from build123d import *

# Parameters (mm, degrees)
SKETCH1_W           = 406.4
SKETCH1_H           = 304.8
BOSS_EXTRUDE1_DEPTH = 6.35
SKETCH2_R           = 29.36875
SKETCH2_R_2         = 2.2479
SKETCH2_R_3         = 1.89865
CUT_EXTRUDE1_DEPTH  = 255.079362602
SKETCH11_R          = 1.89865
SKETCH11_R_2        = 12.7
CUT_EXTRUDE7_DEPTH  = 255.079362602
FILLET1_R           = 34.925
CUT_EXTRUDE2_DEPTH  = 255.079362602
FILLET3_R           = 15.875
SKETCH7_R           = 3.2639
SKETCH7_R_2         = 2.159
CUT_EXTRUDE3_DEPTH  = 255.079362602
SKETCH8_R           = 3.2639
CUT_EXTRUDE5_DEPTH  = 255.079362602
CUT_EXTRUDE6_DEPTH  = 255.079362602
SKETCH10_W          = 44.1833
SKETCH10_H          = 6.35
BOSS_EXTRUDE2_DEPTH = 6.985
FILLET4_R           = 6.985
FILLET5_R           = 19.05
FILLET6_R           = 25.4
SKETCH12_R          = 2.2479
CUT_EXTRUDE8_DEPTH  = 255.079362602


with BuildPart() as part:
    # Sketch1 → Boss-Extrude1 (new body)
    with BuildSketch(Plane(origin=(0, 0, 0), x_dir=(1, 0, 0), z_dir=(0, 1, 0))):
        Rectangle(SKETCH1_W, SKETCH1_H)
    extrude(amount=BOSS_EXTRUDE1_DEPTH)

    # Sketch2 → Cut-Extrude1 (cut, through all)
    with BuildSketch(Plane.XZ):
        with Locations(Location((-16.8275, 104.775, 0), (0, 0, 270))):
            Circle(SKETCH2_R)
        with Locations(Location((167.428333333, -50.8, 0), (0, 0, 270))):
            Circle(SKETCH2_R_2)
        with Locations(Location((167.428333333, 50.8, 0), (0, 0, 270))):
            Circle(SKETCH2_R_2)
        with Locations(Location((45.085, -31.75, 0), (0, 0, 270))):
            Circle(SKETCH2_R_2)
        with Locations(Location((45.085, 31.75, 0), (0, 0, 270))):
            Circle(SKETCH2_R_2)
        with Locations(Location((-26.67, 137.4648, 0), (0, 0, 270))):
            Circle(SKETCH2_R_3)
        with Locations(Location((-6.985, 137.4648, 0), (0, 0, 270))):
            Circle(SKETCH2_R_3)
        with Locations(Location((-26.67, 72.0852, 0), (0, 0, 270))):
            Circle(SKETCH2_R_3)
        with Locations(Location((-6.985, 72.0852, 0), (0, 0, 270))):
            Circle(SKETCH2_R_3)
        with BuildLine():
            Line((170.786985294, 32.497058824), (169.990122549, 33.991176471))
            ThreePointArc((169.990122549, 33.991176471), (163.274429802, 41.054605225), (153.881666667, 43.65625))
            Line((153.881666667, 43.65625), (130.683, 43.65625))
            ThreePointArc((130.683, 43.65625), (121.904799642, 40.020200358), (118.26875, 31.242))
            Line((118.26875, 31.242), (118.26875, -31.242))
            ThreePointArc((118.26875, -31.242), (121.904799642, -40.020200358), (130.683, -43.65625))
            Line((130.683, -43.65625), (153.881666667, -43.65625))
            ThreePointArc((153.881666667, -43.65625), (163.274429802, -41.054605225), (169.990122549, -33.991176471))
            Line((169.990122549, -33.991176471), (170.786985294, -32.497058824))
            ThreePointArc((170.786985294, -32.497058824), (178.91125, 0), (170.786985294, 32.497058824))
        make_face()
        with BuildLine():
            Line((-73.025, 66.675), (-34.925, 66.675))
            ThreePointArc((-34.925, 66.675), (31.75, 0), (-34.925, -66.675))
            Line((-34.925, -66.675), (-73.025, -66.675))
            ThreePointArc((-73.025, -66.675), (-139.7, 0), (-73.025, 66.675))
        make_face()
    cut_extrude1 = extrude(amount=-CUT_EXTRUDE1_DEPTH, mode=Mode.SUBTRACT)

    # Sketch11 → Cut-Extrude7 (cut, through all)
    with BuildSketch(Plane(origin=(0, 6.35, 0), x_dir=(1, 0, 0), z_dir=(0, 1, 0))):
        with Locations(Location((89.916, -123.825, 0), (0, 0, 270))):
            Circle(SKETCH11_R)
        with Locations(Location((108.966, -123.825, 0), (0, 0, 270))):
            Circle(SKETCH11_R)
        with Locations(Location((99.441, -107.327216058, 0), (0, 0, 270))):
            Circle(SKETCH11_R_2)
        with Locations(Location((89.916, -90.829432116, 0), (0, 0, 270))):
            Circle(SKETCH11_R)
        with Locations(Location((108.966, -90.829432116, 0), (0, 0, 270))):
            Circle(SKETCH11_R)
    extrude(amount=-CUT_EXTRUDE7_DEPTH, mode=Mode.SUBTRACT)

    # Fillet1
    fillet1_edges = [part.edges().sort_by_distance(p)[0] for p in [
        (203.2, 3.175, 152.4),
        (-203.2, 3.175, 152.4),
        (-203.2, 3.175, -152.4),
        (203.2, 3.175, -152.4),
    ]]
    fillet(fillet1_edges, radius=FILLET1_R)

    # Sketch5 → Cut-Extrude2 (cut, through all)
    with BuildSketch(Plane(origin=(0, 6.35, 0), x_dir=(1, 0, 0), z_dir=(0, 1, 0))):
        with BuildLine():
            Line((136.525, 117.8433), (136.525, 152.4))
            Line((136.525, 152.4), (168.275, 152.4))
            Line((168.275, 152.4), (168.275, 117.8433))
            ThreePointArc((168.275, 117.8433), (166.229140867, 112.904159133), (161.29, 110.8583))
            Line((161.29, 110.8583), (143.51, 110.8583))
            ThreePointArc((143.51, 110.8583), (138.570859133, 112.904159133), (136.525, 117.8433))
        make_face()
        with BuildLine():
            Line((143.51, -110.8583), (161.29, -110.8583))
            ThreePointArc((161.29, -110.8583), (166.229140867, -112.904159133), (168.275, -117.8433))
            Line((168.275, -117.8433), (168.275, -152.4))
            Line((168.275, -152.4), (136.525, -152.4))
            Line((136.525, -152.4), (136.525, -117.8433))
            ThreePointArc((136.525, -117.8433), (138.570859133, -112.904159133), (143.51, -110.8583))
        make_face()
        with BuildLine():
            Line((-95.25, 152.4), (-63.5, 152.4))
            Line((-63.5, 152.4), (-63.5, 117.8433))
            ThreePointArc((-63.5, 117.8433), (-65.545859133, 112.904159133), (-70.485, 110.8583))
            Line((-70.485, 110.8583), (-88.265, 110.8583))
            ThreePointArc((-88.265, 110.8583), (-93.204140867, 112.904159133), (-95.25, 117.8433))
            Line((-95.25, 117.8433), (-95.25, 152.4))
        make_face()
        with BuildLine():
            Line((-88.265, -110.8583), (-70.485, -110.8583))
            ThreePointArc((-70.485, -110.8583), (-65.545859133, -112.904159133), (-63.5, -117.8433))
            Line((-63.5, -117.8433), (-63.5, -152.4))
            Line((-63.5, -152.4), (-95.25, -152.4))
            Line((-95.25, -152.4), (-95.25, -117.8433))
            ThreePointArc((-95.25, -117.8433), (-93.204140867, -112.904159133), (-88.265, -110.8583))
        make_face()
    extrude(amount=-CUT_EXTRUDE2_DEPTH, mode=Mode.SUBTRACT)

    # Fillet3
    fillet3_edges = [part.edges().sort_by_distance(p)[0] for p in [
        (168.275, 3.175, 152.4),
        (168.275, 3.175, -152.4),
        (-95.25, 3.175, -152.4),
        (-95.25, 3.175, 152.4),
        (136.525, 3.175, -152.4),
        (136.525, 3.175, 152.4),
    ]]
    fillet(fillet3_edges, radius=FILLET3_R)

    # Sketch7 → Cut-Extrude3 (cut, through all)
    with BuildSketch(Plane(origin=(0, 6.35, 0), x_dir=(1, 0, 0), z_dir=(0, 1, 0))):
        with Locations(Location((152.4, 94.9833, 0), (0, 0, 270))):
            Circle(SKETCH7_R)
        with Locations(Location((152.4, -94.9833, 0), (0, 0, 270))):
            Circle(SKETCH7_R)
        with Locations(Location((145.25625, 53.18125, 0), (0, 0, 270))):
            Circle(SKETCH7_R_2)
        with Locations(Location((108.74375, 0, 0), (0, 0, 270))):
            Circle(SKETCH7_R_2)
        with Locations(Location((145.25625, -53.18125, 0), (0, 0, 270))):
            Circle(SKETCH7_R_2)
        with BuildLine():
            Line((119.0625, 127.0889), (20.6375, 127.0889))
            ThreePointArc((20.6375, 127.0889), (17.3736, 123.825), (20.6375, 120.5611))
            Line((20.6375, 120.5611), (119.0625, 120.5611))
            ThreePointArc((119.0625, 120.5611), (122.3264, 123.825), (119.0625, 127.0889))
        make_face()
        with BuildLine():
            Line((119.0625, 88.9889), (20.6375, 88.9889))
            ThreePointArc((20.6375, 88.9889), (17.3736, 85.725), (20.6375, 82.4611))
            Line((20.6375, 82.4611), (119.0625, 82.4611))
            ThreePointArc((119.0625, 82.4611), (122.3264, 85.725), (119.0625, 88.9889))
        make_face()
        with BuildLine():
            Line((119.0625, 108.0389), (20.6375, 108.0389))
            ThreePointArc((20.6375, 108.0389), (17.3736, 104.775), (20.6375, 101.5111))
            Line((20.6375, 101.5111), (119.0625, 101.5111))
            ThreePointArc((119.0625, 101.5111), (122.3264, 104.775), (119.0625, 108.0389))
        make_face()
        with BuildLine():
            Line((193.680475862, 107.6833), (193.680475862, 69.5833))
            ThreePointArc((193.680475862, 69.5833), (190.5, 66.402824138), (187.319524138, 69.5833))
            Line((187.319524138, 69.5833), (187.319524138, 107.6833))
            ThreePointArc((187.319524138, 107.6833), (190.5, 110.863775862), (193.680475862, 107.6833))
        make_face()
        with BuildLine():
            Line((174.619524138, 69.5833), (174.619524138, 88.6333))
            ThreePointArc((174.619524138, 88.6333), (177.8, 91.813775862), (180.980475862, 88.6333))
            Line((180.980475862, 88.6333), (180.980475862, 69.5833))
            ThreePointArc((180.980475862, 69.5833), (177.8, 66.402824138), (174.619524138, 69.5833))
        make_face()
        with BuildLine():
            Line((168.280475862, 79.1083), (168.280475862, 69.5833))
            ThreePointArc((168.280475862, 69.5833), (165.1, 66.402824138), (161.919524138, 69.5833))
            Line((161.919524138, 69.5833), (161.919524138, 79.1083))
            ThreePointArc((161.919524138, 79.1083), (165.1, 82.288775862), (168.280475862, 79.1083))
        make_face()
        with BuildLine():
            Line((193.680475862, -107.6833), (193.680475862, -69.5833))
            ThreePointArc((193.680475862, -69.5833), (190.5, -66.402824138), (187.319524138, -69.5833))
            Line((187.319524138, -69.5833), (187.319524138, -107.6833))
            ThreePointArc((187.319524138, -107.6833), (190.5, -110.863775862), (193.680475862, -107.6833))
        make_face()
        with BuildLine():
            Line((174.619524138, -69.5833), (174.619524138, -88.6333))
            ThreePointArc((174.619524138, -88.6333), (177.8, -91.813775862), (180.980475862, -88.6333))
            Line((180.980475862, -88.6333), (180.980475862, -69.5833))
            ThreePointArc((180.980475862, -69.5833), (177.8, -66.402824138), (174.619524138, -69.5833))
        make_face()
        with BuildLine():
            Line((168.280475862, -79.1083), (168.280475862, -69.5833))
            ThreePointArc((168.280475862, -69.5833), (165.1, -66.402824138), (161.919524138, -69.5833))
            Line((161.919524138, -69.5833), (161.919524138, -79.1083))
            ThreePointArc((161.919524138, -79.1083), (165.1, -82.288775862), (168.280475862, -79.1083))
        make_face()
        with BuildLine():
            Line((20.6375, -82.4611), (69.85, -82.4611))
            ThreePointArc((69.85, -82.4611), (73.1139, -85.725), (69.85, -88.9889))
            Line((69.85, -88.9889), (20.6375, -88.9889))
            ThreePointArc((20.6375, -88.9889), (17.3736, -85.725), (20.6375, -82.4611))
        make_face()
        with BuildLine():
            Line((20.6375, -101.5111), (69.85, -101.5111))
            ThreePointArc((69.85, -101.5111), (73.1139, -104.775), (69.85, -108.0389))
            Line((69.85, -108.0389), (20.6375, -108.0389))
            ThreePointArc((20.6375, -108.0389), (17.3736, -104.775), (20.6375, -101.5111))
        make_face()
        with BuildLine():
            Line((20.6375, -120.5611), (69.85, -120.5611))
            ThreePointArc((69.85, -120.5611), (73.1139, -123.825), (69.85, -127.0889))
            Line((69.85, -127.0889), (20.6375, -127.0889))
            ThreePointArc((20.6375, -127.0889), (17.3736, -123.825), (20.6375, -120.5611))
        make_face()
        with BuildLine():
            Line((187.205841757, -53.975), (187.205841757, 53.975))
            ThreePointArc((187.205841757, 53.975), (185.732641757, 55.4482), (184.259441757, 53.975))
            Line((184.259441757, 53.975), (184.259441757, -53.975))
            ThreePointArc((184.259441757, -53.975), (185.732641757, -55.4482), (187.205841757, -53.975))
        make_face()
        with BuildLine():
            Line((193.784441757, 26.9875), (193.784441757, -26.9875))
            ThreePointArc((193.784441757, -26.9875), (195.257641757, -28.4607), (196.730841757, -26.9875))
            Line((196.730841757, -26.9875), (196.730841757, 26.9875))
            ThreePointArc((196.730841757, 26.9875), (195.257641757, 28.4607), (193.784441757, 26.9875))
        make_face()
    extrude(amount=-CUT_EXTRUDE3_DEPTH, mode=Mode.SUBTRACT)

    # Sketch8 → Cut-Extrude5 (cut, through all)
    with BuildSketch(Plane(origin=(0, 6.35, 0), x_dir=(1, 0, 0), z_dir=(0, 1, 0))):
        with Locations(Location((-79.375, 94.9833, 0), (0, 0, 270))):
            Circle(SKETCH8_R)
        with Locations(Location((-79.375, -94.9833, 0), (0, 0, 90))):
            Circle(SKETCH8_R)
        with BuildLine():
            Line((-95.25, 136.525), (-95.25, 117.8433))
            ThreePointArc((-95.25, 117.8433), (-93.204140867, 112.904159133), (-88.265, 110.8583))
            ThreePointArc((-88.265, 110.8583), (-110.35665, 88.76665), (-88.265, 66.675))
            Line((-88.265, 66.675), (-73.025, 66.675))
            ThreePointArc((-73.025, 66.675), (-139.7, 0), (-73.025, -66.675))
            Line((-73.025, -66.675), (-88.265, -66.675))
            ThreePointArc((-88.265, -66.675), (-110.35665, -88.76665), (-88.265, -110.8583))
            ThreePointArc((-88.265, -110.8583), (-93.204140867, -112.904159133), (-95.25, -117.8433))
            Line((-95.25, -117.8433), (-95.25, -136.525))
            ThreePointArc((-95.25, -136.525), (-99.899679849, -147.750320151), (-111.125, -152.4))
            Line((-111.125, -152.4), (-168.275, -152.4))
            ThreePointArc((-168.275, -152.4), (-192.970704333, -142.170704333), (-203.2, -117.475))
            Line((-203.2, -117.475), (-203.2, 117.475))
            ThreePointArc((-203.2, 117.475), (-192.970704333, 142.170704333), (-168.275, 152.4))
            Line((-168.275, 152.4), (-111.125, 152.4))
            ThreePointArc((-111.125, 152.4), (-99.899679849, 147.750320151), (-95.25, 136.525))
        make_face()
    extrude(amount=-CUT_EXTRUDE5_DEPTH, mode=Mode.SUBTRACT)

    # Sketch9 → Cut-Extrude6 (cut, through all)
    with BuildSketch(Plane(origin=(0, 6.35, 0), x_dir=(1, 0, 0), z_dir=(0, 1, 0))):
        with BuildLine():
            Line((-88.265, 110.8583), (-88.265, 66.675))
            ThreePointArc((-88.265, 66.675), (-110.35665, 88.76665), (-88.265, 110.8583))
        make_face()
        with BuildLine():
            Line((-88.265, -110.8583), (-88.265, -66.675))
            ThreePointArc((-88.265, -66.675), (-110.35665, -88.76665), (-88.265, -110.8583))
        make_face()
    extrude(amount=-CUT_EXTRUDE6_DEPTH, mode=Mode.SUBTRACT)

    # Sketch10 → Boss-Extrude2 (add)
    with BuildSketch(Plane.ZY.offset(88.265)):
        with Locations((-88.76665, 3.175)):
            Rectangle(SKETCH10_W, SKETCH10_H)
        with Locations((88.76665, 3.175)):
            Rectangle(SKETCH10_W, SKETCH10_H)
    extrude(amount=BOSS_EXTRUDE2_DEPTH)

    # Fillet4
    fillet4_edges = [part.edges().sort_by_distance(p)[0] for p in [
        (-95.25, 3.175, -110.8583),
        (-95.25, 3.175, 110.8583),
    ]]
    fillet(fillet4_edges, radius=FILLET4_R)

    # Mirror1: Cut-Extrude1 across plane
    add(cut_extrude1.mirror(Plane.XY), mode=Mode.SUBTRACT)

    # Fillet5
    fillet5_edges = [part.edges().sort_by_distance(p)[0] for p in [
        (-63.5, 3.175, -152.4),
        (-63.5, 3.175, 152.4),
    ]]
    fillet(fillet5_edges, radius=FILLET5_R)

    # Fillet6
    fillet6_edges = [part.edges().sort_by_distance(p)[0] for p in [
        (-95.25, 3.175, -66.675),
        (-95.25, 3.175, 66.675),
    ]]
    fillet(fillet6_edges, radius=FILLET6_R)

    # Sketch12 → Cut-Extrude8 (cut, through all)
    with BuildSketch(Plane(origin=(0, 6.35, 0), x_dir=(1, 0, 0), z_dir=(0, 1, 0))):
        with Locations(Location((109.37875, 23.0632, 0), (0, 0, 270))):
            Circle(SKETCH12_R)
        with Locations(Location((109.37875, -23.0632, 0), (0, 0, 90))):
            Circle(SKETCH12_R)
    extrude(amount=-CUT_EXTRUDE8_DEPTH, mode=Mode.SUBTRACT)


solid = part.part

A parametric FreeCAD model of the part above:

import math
import FreeCAD as App
import Part
import Sketcher
Q = App.Units.Quantity


def edges_at(feature, points):
    """Names of the edges that pass closest to the given points."""
    edges = feature.Shape.Edges
    near = lambda p: min(range(len(edges)), key=lambda i: edges[i].distToShape(Part.Vertex(*p))[0])
    return sorted({f"Edge{near(p) + 1}" for p in points})

doc = App.newDocument("Part")
body = doc.addObject("PartDesign::Body", "Body")

# Sketch on XZ plane
sketch1 = doc.addObject("Sketcher::SketchObject", "Sketch")
body.addObject(sketch1)
sketch1.AttachmentSupport = (doc.XZ_Plane, [""])
sketch1.MapMode = "FlatFace"
sketch1.addGeometry([
    Part.LineSegment(App.Vector(-203, -152, 0), App.Vector(-203, 152, 0)),
    Part.LineSegment(App.Vector(-203, 152, 0), App.Vector(203, 152, 0)),
    Part.LineSegment(App.Vector(203, 152, 0), App.Vector(203, -152, 0)),
    Part.LineSegment(App.Vector(203, -152, 0), App.Vector(-203, -152, 0)),
], False)
sketch1.addConstraint([
    Sketcher.Constraint("Coincident", 0, 2, 1, 1),
    Sketcher.Constraint("Coincident", 1, 2, 2, 1),
    Sketcher.Constraint("Coincident", 2, 2, 3, 1),
    Sketcher.Constraint("Coincident", 3, 2, 0, 1),
    Sketcher.Constraint("Vertical", 0),
    Sketcher.Constraint("Horizontal", 1),
    Sketcher.Constraint("Vertical", 2),
    Sketcher.Constraint("Horizontal", 3),
    Sketcher.Constraint("Symmetric", 0, 2, 2, 2, -1, 1),
    Sketcher.Constraint("DistanceX", 1, 1, 1, 2, Q("16 in")),
    Sketcher.Constraint("DistanceY", 0, 1, 0, 2, Q("12 in")),
])
pad1 = doc.addObject("PartDesign::Pad", "Pad")
body.addObject(pad1)
pad1.Profile = sketch1
pad1.Length = Q("0.25 in")
pad1.Reversed = True

# Sketch on XZ plane
sketch2 = doc.addObject("Sketcher::SketchObject", "Sketch001")
body.addObject(sketch2)
sketch2.AttachmentSupport = (doc.XZ_Plane, [""])
sketch2.MapMode = "FlatFace"
sketch2.addGeometry([
    Part.Circle(App.Vector(-16.8, 104.8, 0), App.Vector(0, 0, 1), 29.4),  # 0
    Part.Circle(App.Vector(167.4, -50.8, 0), App.Vector(0, 0, 1), 2.2),  # 1
    Part.Circle(App.Vector(167.4, 50.8, 0), App.Vector(0, 0, 1), 2.2),  # 2
    Part.Circle(App.Vector(45.1, -31.8, 0), App.Vector(0, 0, 1), 2.2),  # 3
    Part.Circle(App.Vector(45.1, 31.8, 0), App.Vector(0, 0, 1), 2.2),  # 4
    Part.Circle(App.Vector(-26.7, 137.5, 0), App.Vector(0, 0, 1), 1.9),  # 5
    Part.Circle(App.Vector(-7, 137.5, 0), App.Vector(0, 0, 1), 1.9),  # 6
    Part.Circle(App.Vector(-26.7, 72.1, 0), App.Vector(0, 0, 1), 1.9),  # 7
    Part.Circle(App.Vector(-7, 72.1, 0), App.Vector(0, 0, 1), 1.9),  # 8
    Part.LineSegment(App.Vector(170.8, 32.5, 0), App.Vector(170, 34, 0)),  # 9
    Part.ArcOfCircle(Part.Circle(App.Vector(153.9, 25.4, 0), App.Vector(0, 0, 1), 18.3), math.radians(28), math.radians(90)),  # 10
    Part.LineSegment(App.Vector(153.9, 43.7, 0), App.Vector(130.7, 43.7, 0)),  # 11
    Part.ArcOfCircle(Part.Circle(App.Vector(130.7, 31.2, 0), App.Vector(0, 0, 1), 12.4), math.radians(90), math.radians(180)),  # 12
    Part.LineSegment(App.Vector(118.3, 31.2, 0), App.Vector(118.3, -31.2, 0)),  # 13
    Part.ArcOfCircle(Part.Circle(App.Vector(130.7, -31.2, 0), App.Vector(0, 0, 1), 12.4), math.radians(-180), math.radians(-90)),  # 14
    Part.LineSegment(App.Vector(130.7, -43.7, 0), App.Vector(153.9, -43.7, 0)),  # 15
    Part.ArcOfCircle(Part.Circle(App.Vector(153.9, -25.4, 0), App.Vector(0, 0, 1), 18.3), math.radians(-90), math.radians(-28)),  # 16
    Part.LineSegment(App.Vector(170, -34, 0), App.Vector(170.8, -32.5, 0)),  # 17
    Part.ArcOfCircle(Part.Circle(App.Vector(109.9, 0, 0), App.Vector(0, 0, 1), 69.1), math.radians(-28), math.radians(28)),  # 18
    Part.LineSegment(App.Vector(-34.9, 66.7, 0), App.Vector(-73, 66.7, 0)),  # 19
    Part.ArcOfCircle(Part.Circle(App.Vector(-73, 0, 0), App.Vector(0, 0, 1), 66.7), math.radians(90), math.radians(270)),  # 20
    Part.LineSegment(App.Vector(-73, -66.7, 0), App.Vector(-34.9, -66.7, 0)),  # 21
    Part.ArcOfCircle(Part.Circle(App.Vector(-34.9, 0, 0), App.Vector(0, 0, 1), 66.7), math.radians(-90), math.radians(90)),  # 22
], False)
sketch2.addConstraint([
    Sketcher.Constraint("Tangent", 9, 2, 10, 1),
    Sketcher.Constraint("Tangent", 10, 2, 11, 1),
    Sketcher.Constraint("Tangent", 11, 2, 12, 1),
    Sketcher.Constraint("Tangent", 12, 2, 13, 1),
    Sketcher.Constraint("Tangent", 13, 2, 14, 1),
    Sketcher.Constraint("Tangent", 14, 2, 15, 1),
    Sketcher.Constraint("Tangent", 15, 2, 16, 1),
    Sketcher.Constraint("Tangent", 16, 2, 17, 1),
    Sketcher.Constraint("Tangent", 17, 2, 18, 1),
    Sketcher.Constraint("Tangent", 18, 2, 9, 1),
    Sketcher.Constraint("Tangent", 19, 2, 20, 1),
    Sketcher.Constraint("Tangent", 20, 2, 21, 1),
    Sketcher.Constraint("Tangent", 21, 2, 22, 1),
    Sketcher.Constraint("Tangent", 22, 2, 19, 1),
    Sketcher.Constraint("Horizontal", 11),
    Sketcher.Constraint("Vertical", 13),
    Sketcher.Constraint("Horizontal", 15),
    Sketcher.Constraint("Horizontal", 19),
    Sketcher.Constraint("Horizontal", 21),
    Sketcher.Constraint("Equal", 1, 2),
    Sketcher.Constraint("Equal", 2, 3),
    Sketcher.Constraint("Equal", 3, 4),
    Sketcher.Constraint("Equal", 5, 6),
    Sketcher.Constraint("Equal", 6, 7),
    Sketcher.Constraint("Equal", 7, 8),
    Sketcher.Constraint("Equal", 12, 14),
    Sketcher.Constraint("Equal", 10, 16),
    Sketcher.Constraint("Symmetric", 1, 3, 2, 3, -1),
    Sketcher.Constraint("Symmetric", 3, 3, 4, 3, -1),
    Sketcher.Constraint("Symmetric", 10, 3, 16, 3, -1),
    Sketcher.Constraint("PointOnObject", 18, 3, -1),
    Sketcher.Constraint("PointOnObject", 20, 3, -1),
    Sketcher.Constraint("Horizontal", 5, 3, 6, 3),
    Sketcher.Constraint("Horizontal", 7, 3, 8, 3),
    Sketcher.Constraint("Vertical", 5, 3, 7, 3),
    Sketcher.Constraint("Vertical", 6, 3, 8, 3),
    Sketcher.Constraint("Diameter", 0, Q("2.3125 in")),
    Sketcher.Constraint("Diameter", 1, Q("0.177 in")),
    Sketcher.Constraint("DistanceX", 19, 2, 19, 1, Q("1.5 in")),
    Sketcher.Constraint("DistanceY", 1, 3, -1, 1, Q("2 in")),
    Sketcher.Constraint("DistanceY", -1, 1, 10, 3, Q("1 in")),
    Sketcher.Constraint("Radius", 10, Q("0.71875 in")),
    Sketcher.Constraint("Radius", 18, Q("2.71875 in")),
    Sketcher.Constraint("Radius", 20, Q("2.625 in")),
    Sketcher.Constraint("Diameter", 5, Q("0.1495 in")),
    Sketcher.Constraint("DistanceY", 13, 2, 13, 1, Q("2.46 in")),
    Sketcher.Constraint("DistanceY", 3, 3, 4, 3, Q("2.5 in")),
    Sketcher.Constraint("DistanceX", 20, 3, 8, 3, Q("2.6 in")),
    Sketcher.Constraint("DistanceY", 19, 2, 0, 3, Q("1.5 in")),
    Sketcher.Constraint("DistanceX", 5, 3, -1, 1, Q("1.05 in")),
    Sketcher.Constraint("DistanceX", 6, 3, 4, 3, Q("2.05 in")),
    Sketcher.Constraint("DistanceX", 4, 3, 12, 3, Q("3.37 in")),
    Sketcher.Constraint("DistanceX", 18, 3, 12, 3, Q("0.82 in")),
    Sketcher.Constraint("DistanceX", -1, 1, 3, 3, Q("1.775 in")),
    Sketcher.Constraint("DistanceY", -1, 1, 5, 3, Q("5.412 in")),
    Sketcher.Constraint("DistanceY", -1, 1, 7, 3, Q("2.838 in")),
    Sketcher.Constraint("DistanceX", 0, 3, 3, 3, Q("2.4375 in")),
    Sketcher.Constraint("DistanceX", 11, 2, 11, 1, 23.198667),
    Sketcher.Constraint("DistanceX", 2, 3, 9, 2, 2.561789),
])
pocket1 = doc.addObject("PartDesign::Pocket", "Pocket")
body.addObject(pocket1)
pocket1.Profile = sketch2
pocket1.Type = "ThroughAll"

# Sketch on XZ plane
sketch3 = doc.addObject("Sketcher::SketchObject", "Sketch002")
body.addObject(sketch3)
sketch3.AttachmentSupport = (doc.XZ_Plane, [""])
sketch3.MapMode = "FlatFace"
sketch3.AttachmentOffset = App.Placement(App.Vector(0, 0, -0.25 * 25.4), App.Rotation())
sketch3.addGeometry([
    Part.Circle(App.Vector(89.9, 123.8, 0), App.Vector(0, 0, 1), 1.9),  # 0
    Part.Circle(App.Vector(109, 123.8, 0), App.Vector(0, 0, 1), 1.9),  # 1
    Part.Circle(App.Vector(99.4, 107.3, 0), App.Vector(0, 0, 1), 12.7),  # 2
    Part.Circle(App.Vector(89.9, 90.8, 0), App.Vector(0, 0, 1), 1.9),  # 3
    Part.Circle(App.Vector(109, 90.8, 0), App.Vector(0, 0, 1), 1.9),  # 4
], False)
sketch3.addConstraint([
    Sketcher.Constraint("Equal", 0, 1),
    Sketcher.Constraint("Equal", 1, 3),
    Sketcher.Constraint("Equal", 3, 4),
    Sketcher.Constraint("Horizontal", 0, 3, 1, 3),
    Sketcher.Constraint("Horizontal", 3, 3, 4, 3),
    Sketcher.Constraint("Vertical", 0, 3, 3, 3),
    Sketcher.Constraint("Vertical", 1, 3, 4, 3),
    Sketcher.Constraint("Diameter", 2, Q("1 in")),
    Sketcher.Constraint("Diameter", 0, Q("0.1495 in")),
    Sketcher.Constraint("DistanceX", -1, 1, 0, 3, Q("3.54 in")),
    Sketcher.Constraint("DistanceX", -1, 1, 1, 3, Q("4.29 in")),
    Sketcher.Constraint("DistanceY", -1, 1, 0, 3, Q("4.875 in")),
    Sketcher.Constraint("DistanceX", -1, 1, 2, 3, Q("3.915 in")),
    Sketcher.Constraint("DistanceY", -1, 1, 2, 3, 107.327216),
    Sketcher.Constraint("DistanceY", -1, 1, 3, 3, 90.829432),
])
pocket2 = doc.addObject("PartDesign::Pocket", "Pocket001")
body.addObject(pocket2)
pocket2.Profile = sketch3
pocket2.Type = "ThroughAll"
pocket2.Reversed = True
doc.recompute()

fillet = doc.addObject("PartDesign::Fillet", "Fillet")
body.addObject(fillet)
fillet.Base = (pocket2, edges_at(pocket2, [
    (203.2, 3.175, 152.4),
    (-203.2, 3.175, 152.4),
    (-203.2, 3.175, -152.4),
    (203.2, 3.175, -152.4),
]))
fillet.Radius = Q("1.375 in")

# Sketch on XZ plane
sketch4 = doc.addObject("Sketcher::SketchObject", "Sketch003")
body.addObject(sketch4)
sketch4.AttachmentSupport = (doc.XZ_Plane, [""])
sketch4.MapMode = "FlatFace"
sketch4.AttachmentOffset = App.Placement(App.Vector(0, 0, -0.25 * 25.4), App.Rotation())
sketch4.addGeometry([
    Part.LineSegment(App.Vector(137, -152, 0), App.Vector(137, -118, 0)),  # 0
    Part.ArcOfCircle(Part.Circle(App.Vector(144, -118, 0), App.Vector(0, 0, 1), 7), math.radians(90), math.radians(180)),  # 1
    Part.LineSegment(App.Vector(144, -111, 0), App.Vector(161, -111, 0)),  # 2
    Part.ArcOfCircle(Part.Circle(App.Vector(161, -118, 0), App.Vector(0, 0, 1), 7), math.radians(0), math.radians(90)),  # 3
    Part.LineSegment(App.Vector(168, -118, 0), App.Vector(168, -152, 0)),  # 4
    Part.LineSegment(App.Vector(168, -152, 0), App.Vector(137, -152, 0)),  # 5
    Part.LineSegment(App.Vector(161, 111, 0), App.Vector(144, 111, 0)),  # 6
    Part.ArcOfCircle(Part.Circle(App.Vector(144, 118, 0), App.Vector(0, 0, 1), 7), math.radians(180), math.radians(270)),  # 7
    Part.LineSegment(App.Vector(137, 118, 0), App.Vector(137, 152, 0)),  # 8
    Part.LineSegment(App.Vector(137, 152, 0), App.Vector(168, 152, 0)),  # 9
    Part.LineSegment(App.Vector(168, 152, 0), App.Vector(168, 118, 0)),  # 10
    Part.ArcOfCircle(Part.Circle(App.Vector(161, 118, 0), App.Vector(0, 0, 1), 7), math.radians(-90), math.radians(0)),  # 11
    Part.LineSegment(App.Vector(-64, -152, 0), App.Vector(-95, -152, 0)),  # 12
    Part.LineSegment(App.Vector(-95, -152, 0), App.Vector(-95, -118, 0)),  # 13
    Part.ArcOfCircle(Part.Circle(App.Vector(-88, -118, 0), App.Vector(0, 0, 1), 7), math.radians(90), math.radians(180)),  # 14
    Part.LineSegment(App.Vector(-88, -111, 0), App.Vector(-70, -111, 0)),  # 15
    Part.ArcOfCircle(Part.Circle(App.Vector(-70, -118, 0), App.Vector(0, 0, 1), 7), math.radians(0), math.radians(90)),  # 16
    Part.LineSegment(App.Vector(-64, -118, 0), App.Vector(-64, -152, 0)),  # 17
    Part.LineSegment(App.Vector(-70, 111, 0), App.Vector(-88, 111, 0)),  # 18
    Part.ArcOfCircle(Part.Circle(App.Vector(-88, 118, 0), App.Vector(0, 0, 1), 7), math.radians(180), math.radians(270)),  # 19
    Part.LineSegment(App.Vector(-95, 118, 0), App.Vector(-95, 152, 0)),  # 20
    Part.LineSegment(App.Vector(-95, 152, 0), App.Vector(-64, 152, 0)),  # 21
    Part.LineSegment(App.Vector(-64, 152, 0), App.Vector(-64, 118, 0)),  # 22
    Part.ArcOfCircle(Part.Circle(App.Vector(-70, 118, 0), App.Vector(0, 0, 1), 7), math.radians(-90), math.radians(0)),  # 23
], False)
sketch4.addConstraint([
    Sketcher.Constraint("Tangent", 0, 2, 1, 2),
    Sketcher.Constraint("Tangent", 1, 1, 2, 1),
    Sketcher.Constraint("Tangent", 2, 2, 3, 2),
    Sketcher.Constraint("Tangent", 3, 1, 4, 1),
    Sketcher.Constraint("Coincident", 4, 2, 5, 1),
    Sketcher.Constraint("Coincident", 5, 2, 0, 1),
    Sketcher.Constraint("Tangent", 6, 2, 7, 2),
    Sketcher.Constraint("Tangent", 7, 1, 8, 1),
    Sketcher.Constraint("Coincident", 8, 2, 9, 1),
    Sketcher.Constraint("Coincident", 9, 2, 10, 1),
    Sketcher.Constraint("Tangent", 10, 2, 11, 2),
    Sketcher.Constraint("Tangent", 11, 1, 6, 1),
    Sketcher.Constraint("Coincident", 12, 2, 13, 1),
    Sketcher.Constraint("Tangent", 13, 2, 14, 2),
    Sketcher.Constraint("Tangent", 14, 1, 15, 1),
    Sketcher.Constraint("Tangent", 15, 2, 16, 2),
    Sketcher.Constraint("Tangent", 16, 1, 17, 1),
    Sketcher.Constraint("Coincident", 17, 2, 12, 1),
    Sketcher.Constraint("Tangent", 18, 2, 19, 2),
    Sketcher.Constraint("Tangent", 19, 1, 20, 1),
    Sketcher.Constraint("Coincident", 20, 2, 21, 1),
    Sketcher.Constraint("Coincident", 21, 2, 22, 1),
    Sketcher.Constraint("Tangent", 22, 2, 23, 2),
    Sketcher.Constraint("Tangent", 23, 1, 18, 1),
    Sketcher.Constraint("Vertical", 0),
    Sketcher.Constraint("Horizontal", 2),
    Sketcher.Constraint("Vertical", 4),
    Sketcher.Constraint("Horizontal", 5),
    Sketcher.Constraint("Horizontal", 6),
    Sketcher.Constraint("Vertical", 8),
    Sketcher.Constraint("Horizontal", 9),
    Sketcher.Constraint("Vertical", 10),
    Sketcher.Constraint("Horizontal", 12),
    Sketcher.Constraint("Vertical", 13),
    Sketcher.Constraint("Horizontal", 15),
    Sketcher.Constraint("Vertical", 17),
    Sketcher.Constraint("Horizontal", 18),
    Sketcher.Constraint("Vertical", 20),
    Sketcher.Constraint("Horizontal", 21),
    Sketcher.Constraint("Vertical", 22),
    Sketcher.Constraint("Equal", 1, 3),
    Sketcher.Constraint("Equal", 3, 7),
    Sketcher.Constraint("Equal", 7, 11),
    Sketcher.Constraint("Equal", 11, 14),
    Sketcher.Constraint("Equal", 14, 16),
    Sketcher.Constraint("Equal", 16, 19),
    Sketcher.Constraint("Equal", 19, 23),
    Sketcher.Constraint("Symmetric", 1, 3, 7, 3, -1),
    Sketcher.Constraint("Symmetric", 14, 3, 19, 3, -1),
    Sketcher.Constraint("Symmetric", 4, 2, 9, 2, -1),
    Sketcher.Constraint("Symmetric", 17, 2, 21, 2, -1),
    Sketcher.Constraint("Horizontal", 3, 3, 14, 3),
    Sketcher.Constraint("Horizontal", 5, 2, 12, 2),
    Sketcher.Constraint("Equal", 9, 12),
    Sketcher.Constraint("DistanceX", 2, 1, 2, 2, Q("0.7 in")),
    Sketcher.Constraint("DistanceY", 4, 2, -1, 1, Q("6 in")),
    Sketcher.Constraint("Radius", 1, Q("0.275 in")),
    Sketcher.Constraint("DistanceX", 16, 1, -1, 1, Q("2.5 in")),
    Sketcher.Constraint("DistanceX", 12, 2, 1, 3, Q("9.4 in")),
    Sketcher.Constraint("DistanceY", 0, 1, 0, 2, Q("1.3605 in")),
])
pocket3 = doc.addObject("PartDesign::Pocket", "Pocket002")
body.addObject(pocket3)
pocket3.Profile = sketch4
pocket3.Type = "ThroughAll"
pocket3.Reversed = True
doc.recompute()

fillet2 = doc.addObject("PartDesign::Fillet", "Fillet001")
body.addObject(fillet2)
fillet2.Base = (pocket3, edges_at(pocket3, [
    (168.275, 3.175, 152.4),
    (168.275, 3.175, -152.4),
    (-95.25, 3.175, -152.4),
    (-95.25, 3.175, 152.4),
    (136.525, 3.175, -152.4),
    (136.525, 3.175, 152.4),
]))
fillet2.Radius = Q("0.625 in")

# Sketch on XZ plane
sketch5 = doc.addObject("Sketcher::SketchObject", "Sketch004")
body.addObject(sketch5)
sketch5.AttachmentSupport = (doc.XZ_Plane, [""])
sketch5.MapMode = "FlatFace"
sketch5.AttachmentOffset = App.Placement(App.Vector(0, 0, -0.25 * 25.4), App.Rotation())
sketch5.addGeometry([
    Part.Circle(App.Vector(152.4, -95, 0), App.Vector(0, 0, 1), 3.3),  # 0
    Part.Circle(App.Vector(152.4, 95, 0), App.Vector(0, 0, 1), 3.3),  # 1
    Part.Circle(App.Vector(145.3, -53.2, 0), App.Vector(0, 0, 1), 2.2),  # 2
    Part.Circle(App.Vector(108.7, 0, 0), App.Vector(0, 0, 1), 2.2),  # 3
    Part.Circle(App.Vector(145.3, 53.2, 0), App.Vector(0, 0, 1), 2.2),  # 4
    Part.LineSegment(App.Vector(119.1, -127.1, 0), App.Vector(20.6, -127.1, 0)),  # 5
    Part.ArcOfCircle(Part.Circle(App.Vector(20.6, -123.8, 0), App.Vector(0, 0, 1), 3.3), math.radians(90), math.radians(270)),  # 6
    Part.LineSegment(App.Vector(20.6, -120.6, 0), App.Vector(119.1, -120.6, 0)),  # 7
    Part.ArcOfCircle(Part.Circle(App.Vector(119.1, -123.8, 0), App.Vector(0, 0, 1), 3.3), math.radians(-90), math.radians(90)),  # 8
    Part.LineSegment(App.Vector(119.1, -89, 0), App.Vector(20.6, -89, 0)),  # 9
    Part.ArcOfCircle(Part.Circle(App.Vector(20.6, -85.7, 0), App.Vector(0, 0, 1), 3.3), math.radians(90), math.radians(270)),  # 10
    Part.LineSegment(App.Vector(20.6, -82.5, 0), App.Vector(119.1, -82.5, 0)),  # 11
    Part.ArcOfCircle(Part.Circle(App.Vector(119.1, -85.7, 0), App.Vector(0, 0, 1), 3.3), math.radians(-90), math.radians(90)),  # 12
    Part.LineSegment(App.Vector(119.1, -108, 0), App.Vector(20.6, -108, 0)),  # 13
    Part.ArcOfCircle(Part.Circle(App.Vector(20.6, -104.8, 0), App.Vector(0, 0, 1), 3.3), math.radians(90), math.radians(270)),  # 14
    Part.LineSegment(App.Vector(20.6, -101.5, 0), App.Vector(119.1, -101.5, 0)),  # 15
    Part.ArcOfCircle(Part.Circle(App.Vector(119.1, -104.8, 0), App.Vector(0, 0, 1), 3.3), math.radians(-90), math.radians(90)),  # 16
    Part.LineSegment(App.Vector(193.7, -69.6, 0), App.Vector(193.7, -107.7, 0)),  # 17
    Part.ArcOfCircle(Part.Circle(App.Vector(190.5, -107.7, 0), App.Vector(0, 0, 1), 3.2), math.radians(180), math.radians(360)),  # 18
    Part.LineSegment(App.Vector(187.3, -107.7, 0), App.Vector(187.3, -69.6, 0)),  # 19
    Part.ArcOfCircle(Part.Circle(App.Vector(190.5, -69.6, 0), App.Vector(0, 0, 1), 3.2), math.radians(0), math.radians(180)),  # 20
    Part.LineSegment(App.Vector(174.6, -88.6, 0), App.Vector(174.6, -69.6, 0)),  # 21
    Part.ArcOfCircle(Part.Circle(App.Vector(177.8, -69.6, 0), App.Vector(0, 0, 1), 3.2), math.radians(0), math.radians(180)),  # 22
    Part.LineSegment(App.Vector(181, -69.6, 0), App.Vector(181, -88.6, 0)),  # 23
    Part.ArcOfCircle(Part.Circle(App.Vector(177.8, -88.6, 0), App.Vector(0, 0, 1), 3.2), math.radians(180), math.radians(360)),  # 24
    Part.LineSegment(App.Vector(168.3, -69.6, 0), App.Vector(168.3, -79.1, 0)),  # 25
    Part.ArcOfCircle(Part.Circle(App.Vector(165.1, -79.1, 0), App.Vector(0, 0, 1), 3.2), math.radians(180), math.radians(360)),  # 26
    Part.LineSegment(App.Vector(161.9, -79.1, 0), App.Vector(161.9, -69.6, 0)),  # 27
    Part.ArcOfCircle(Part.Circle(App.Vector(165.1, -69.6, 0), App.Vector(0, 0, 1), 3.2), math.radians(0), math.radians(180)),  # 28
    Part.LineSegment(App.Vector(193.7, 107.7, 0), App.Vector(193.7, 69.6, 0)),  # 29
    Part.ArcOfCircle(Part.Circle(App.Vector(190.5, 69.6, 0), App.Vector(0, 0, 1), 3.2), math.radians(180), math.radians(360)),  # 30
    Part.LineSegment(App.Vector(187.3, 69.6, 0), App.Vector(187.3, 107.7, 0)),  # 31
    Part.ArcOfCircle(Part.Circle(App.Vector(190.5, 107.7, 0), App.Vector(0, 0, 1), 3.2), math.radians(0), math.radians(180)),  # 32
    Part.LineSegment(App.Vector(174.6, 69.6, 0), App.Vector(174.6, 88.6, 0)),  # 33
    Part.ArcOfCircle(Part.Circle(App.Vector(177.8, 88.6, 0), App.Vector(0, 0, 1), 3.2), math.radians(0), math.radians(180)),  # 34
    Part.LineSegment(App.Vector(181, 88.6, 0), App.Vector(181, 69.6, 0)),  # 35
    Part.ArcOfCircle(Part.Circle(App.Vector(177.8, 69.6, 0), App.Vector(0, 0, 1), 3.2), math.radians(180), math.radians(360)),  # 36
    Part.LineSegment(App.Vector(168.3, 79.1, 0), App.Vector(168.3, 69.6, 0)),  # 37
    Part.ArcOfCircle(Part.Circle(App.Vector(165.1, 69.6, 0), App.Vector(0, 0, 1), 3.2), math.radians(180), math.radians(360)),  # 38
    Part.LineSegment(App.Vector(161.9, 69.6, 0), App.Vector(161.9, 79.1, 0)),  # 39
    Part.ArcOfCircle(Part.Circle(App.Vector(165.1, 79.1, 0), App.Vector(0, 0, 1), 3.2), math.radians(0), math.radians(180)),  # 40
    Part.LineSegment(App.Vector(69.8, 82.5, 0), App.Vector(20.6, 82.5, 0)),  # 41
    Part.ArcOfCircle(Part.Circle(App.Vector(20.6, 85.7, 0), App.Vector(0, 0, 1), 3.3), math.radians(90), math.radians(270)),  # 42
    Part.LineSegment(App.Vector(20.6, 89, 0), App.Vector(69.8, 89, 0)),  # 43
    Part.ArcOfCircle(Part.Circle(App.Vector(69.8, 85.7, 0), App.Vector(0, 0, 1), 3.3), math.radians(-90), math.radians(90)),  # 44
    Part.LineSegment(App.Vector(69.8, 101.5, 0), App.Vector(20.6, 101.5, 0)),  # 45
    Part.ArcOfCircle(Part.Circle(App.Vector(20.6, 104.8, 0), App.Vector(0, 0, 1), 3.3), math.radians(90), math.radians(270)),  # 46
    Part.LineSegment(App.Vector(20.6, 108, 0), App.Vector(69.8, 108, 0)),  # 47
    Part.ArcOfCircle(Part.Circle(App.Vector(69.8, 104.8, 0), App.Vector(0, 0, 1), 3.3), math.radians(-90), math.radians(90)),  # 48
    Part.LineSegment(App.Vector(69.8, 120.6, 0), App.Vector(20.6, 120.6, 0)),  # 49
    Part.ArcOfCircle(Part.Circle(App.Vector(20.6, 123.8, 0), App.Vector(0, 0, 1), 3.3), math.radians(90), math.radians(270)),  # 50
    Part.LineSegment(App.Vector(20.6, 127.1, 0), App.Vector(69.8, 127.1, 0)),  # 51
    Part.ArcOfCircle(Part.Circle(App.Vector(69.8, 123.8, 0), App.Vector(0, 0, 1), 3.3), math.radians(-90), math.radians(90)),  # 52
    Part.LineSegment(App.Vector(187.2, 54, 0), App.Vector(187.2, -54, 0)),  # 53
    Part.ArcOfCircle(Part.Circle(App.Vector(185.7, -54, 0), App.Vector(0, 0, 1), 1.5), math.radians(180), math.radians(360)),  # 54
    Part.LineSegment(App.Vector(184.3, -54, 0), App.Vector(184.3, 54, 0)),  # 55
    Part.ArcOfCircle(Part.Circle(App.Vector(185.7, 54, 0), App.Vector(0, 0, 1), 1.5), math.radians(0), math.radians(180)),  # 56
    Part.LineSegment(App.Vector(193.8, -27, 0), App.Vector(193.8, 27, 0)),  # 57
    Part.ArcOfCircle(Part.Circle(App.Vector(195.3, 27, 0), App.Vector(0, 0, 1), 1.5), math.radians(0), math.radians(180)),  # 58
    Part.LineSegment(App.Vector(196.7, 27, 0), App.Vector(196.7, -27, 0)),  # 59
    Part.ArcOfCircle(Part.Circle(App.Vector(195.3, -27, 0), App.Vector(0, 0, 1), 1.5), math.radians(180), math.radians(360)),  # 60
], False)
sketch5.addConstraint([
    Sketcher.Constraint("Tangent", 5, 2, 6, 2),
    Sketcher.Constraint("Tangent", 6, 1, 7, 1),
    Sketcher.Constraint("Tangent", 7, 2, 8, 2),
    Sketcher.Constraint("Tangent", 8, 1, 5, 1),
    Sketcher.Constraint("Tangent", 9, 2, 10, 2),
    Sketcher.Constraint("Tangent", 10, 1, 11, 1),
    Sketcher.Constraint("Tangent", 11, 2, 12, 2),
    Sketcher.Constraint("Tangent", 12, 1, 9, 1),
    Sketcher.Constraint("Tangent", 13, 2, 14, 2),
    Sketcher.Constraint("Tangent", 14, 1, 15, 1),
    Sketcher.Constraint("Tangent", 15, 2, 16, 2),
    Sketcher.Constraint("Tangent", 16, 1, 13, 1),
    Sketcher.Constraint("Tangent", 17, 2, 18, 2),
    Sketcher.Constraint("Tangent", 18, 1, 19, 1),
    Sketcher.Constraint("Tangent", 19, 2, 20, 2),
    Sketcher.Constraint("Tangent", 20, 1, 17, 1),
    Sketcher.Constraint("Tangent", 21, 2, 22, 2),
    Sketcher.Constraint("Tangent", 22, 1, 23, 1),
    Sketcher.Constraint("Tangent", 23, 2, 24, 2),
    Sketcher.Constraint("Tangent", 24, 1, 21, 1),
    Sketcher.Constraint("Tangent", 25, 2, 26, 2),
    Sketcher.Constraint("Tangent", 26, 1, 27, 1),
    Sketcher.Constraint("Tangent", 27, 2, 28, 2),
    Sketcher.Constraint("Tangent", 28, 1, 25, 1),
    Sketcher.Constraint("Tangent", 29, 2, 30, 2),
    Sketcher.Constraint("Tangent", 30, 1, 31, 1),
    Sketcher.Constraint("Tangent", 31, 2, 32, 2),
    Sketcher.Constraint("Tangent", 32, 1, 29, 1),
    Sketcher.Constraint("Tangent", 33, 2, 34, 2),
    Sketcher.Constraint("Tangent", 34, 1, 35, 1),
    Sketcher.Constraint("Tangent", 35, 2, 36, 2),
    Sketcher.Constraint("Tangent", 36, 1, 33, 1),
    Sketcher.Constraint("Tangent", 37, 2, 38, 2),
    Sketcher.Constraint("Tangent", 38, 1, 39, 1),
    Sketcher.Constraint("Tangent", 39, 2, 40, 2),
    Sketcher.Constraint("Tangent", 40, 1, 37, 1),
    Sketcher.Constraint("Tangent", 41, 2, 42, 2),
    Sketcher.Constraint("Tangent", 42, 1, 43, 1),
    Sketcher.Constraint("Tangent", 43, 2, 44, 2),
    Sketcher.Constraint("Tangent", 44, 1, 41, 1),
    Sketcher.Constraint("Tangent", 45, 2, 46, 2),
    Sketcher.Constraint("Tangent", 46, 1, 47, 1),
    Sketcher.Constraint("Tangent", 47, 2, 48, 2),
    Sketcher.Constraint("Tangent", 48, 1, 45, 1),
    Sketcher.Constraint("Tangent", 49, 2, 50, 2),
    Sketcher.Constraint("Tangent", 50, 1, 51, 1),
    Sketcher.Constraint("Tangent", 51, 2, 52, 2),
    Sketcher.Constraint("Tangent", 52, 1, 49, 1),
    Sketcher.Constraint("Tangent", 53, 2, 54, 2),
    Sketcher.Constraint("Tangent", 54, 1, 55, 1),
    Sketcher.Constraint("Tangent", 55, 2, 56, 2),
    Sketcher.Constraint("Tangent", 56, 1, 53, 1),
    Sketcher.Constraint("Tangent", 57, 2, 58, 2),
    Sketcher.Constraint("Tangent", 58, 1, 59, 1),
    Sketcher.Constraint("Tangent", 59, 2, 60, 2),
    Sketcher.Constraint("Tangent", 60, 1, 57, 1),
    Sketcher.Constraint("Horizontal", 5),
    Sketcher.Constraint("Horizontal", 7),
    Sketcher.Constraint("Horizontal", 9),
    Sketcher.Constraint("Horizontal", 11),
    Sketcher.Constraint("Horizontal", 13),
    Sketcher.Constraint("Horizontal", 15),
    Sketcher.Constraint("Vertical", 17),
    Sketcher.Constraint("Vertical", 19),
    Sketcher.Constraint("Vertical", 21),
    Sketcher.Constraint("Vertical", 23),
    Sketcher.Constraint("Vertical", 25),
    Sketcher.Constraint("Vertical", 27),
    Sketcher.Constraint("Vertical", 29),
    Sketcher.Constraint("Vertical", 31),
    Sketcher.Constraint("Vertical", 33),
    Sketcher.Constraint("Vertical", 35),
    Sketcher.Constraint("Vertical", 37),
    Sketcher.Constraint("Vertical", 39),
    Sketcher.Constraint("Horizontal", 41),
    Sketcher.Constraint("Horizontal", 43),
    Sketcher.Constraint("Horizontal", 45),
    Sketcher.Constraint("Horizontal", 47),
    Sketcher.Constraint("Horizontal", 49),
    Sketcher.Constraint("Horizontal", 51),
    Sketcher.Constraint("Vertical", 53),
    Sketcher.Constraint("Vertical", 55),
    Sketcher.Constraint("Vertical", 57),
    Sketcher.Constraint("Vertical", 59),
    Sketcher.Constraint("Equal", 0, 1),
    Sketcher.Constraint("Equal", 2, 3),
    Sketcher.Constraint("Equal", 3, 4),
    Sketcher.Constraint("Equal", 1, 6),
    Sketcher.Constraint("Equal", 8, 10),
    Sketcher.Constraint("Equal", 12, 14),
    Sketcher.Constraint("Equal", 20, 22),
    Sketcher.Constraint("Equal", 24, 26),
    Sketcher.Constraint("Equal", 28, 30),
    Sketcher.Constraint("Equal", 32, 34),
    Sketcher.Constraint("Equal", 36, 38),
    Sketcher.Constraint("Equal", 16, 42),
    Sketcher.Constraint("Equal", 44, 46),
    Sketcher.Constraint("Equal", 48, 50),
    Sketcher.Constraint("Equal", 56, 58),
    Sketcher.Constraint("Symmetric", 0, 3, 1, 3, -1),
    Sketcher.Constraint("Symmetric", 2, 3, 4, 3, -1),
    Sketcher.Constraint("Symmetric", 20, 3, 30, 3, -1),
    Sketcher.Constraint("Symmetric", 24, 3, 34, 3, -1),
    Sketcher.Constraint("Symmetric", 28, 3, 38, 3, -1),
    Sketcher.Constraint("Symmetric", 10, 3, 42, 3, -1),
    Sketcher.Constraint("Symmetric", 14, 3, 46, 3, -1),
    Sketcher.Constraint("Symmetric", 6, 3, 50, 3, -1),
    Sketcher.Constraint("PointOnObject", 3, 3, -1),
    Sketcher.Constraint("Horizontal", 20, 3, 22, 3),
    Sketcher.Constraint("Horizontal", 22, 3, 28, 3),
    Sketcher.Constraint("Horizontal", 30, 3, 36, 3),
    Sketcher.Constraint("Vertical", 6, 3, 10, 3),
    Sketcher.Constraint("Vertical", 8, 3, 12, 3),
    Sketcher.Constraint("Vertical", 10, 3, 14, 3),
    Sketcher.Constraint("Vertical", 12, 3, 16, 3),
    Sketcher.Constraint("Vertical", 44, 3, 48, 3),
    Sketcher.Constraint("Vertical", 48, 3, 52, 3),
    Sketcher.Constraint("Equal", 19, 29),
    Sketcher.Constraint("Equal", 27, 37),
    Sketcher.Constraint("Diameter", 2, Q("0.17 in")),
    Sketcher.Constraint("Diameter", 0, Q("0.257 in")),
    Sketcher.Constraint("DistanceY", 17, 2, 17, 1, Q("1.5 in")),
    Sketcher.Constraint("DistanceX", -1, 1, 0, 3, Q("6 in")),
    Sketcher.Constraint("DistanceX", -1, 1, 22, 3, Q("7 in")),
    Sketcher.Constraint("Radius", 54, Q("0.058 in")),
    Sketcher.Constraint("DistanceY", 21, 1, 21, 2, Q("0.75 in")),
    Sketcher.Constraint("DistanceY", 53, 2, 53, 1, Q("4.25 in")),
    Sketcher.Constraint("DistanceX", -1, 1, 18, 3, Q("7.5 in")),
    Sketcher.Constraint("DistanceX", -1, 1, 26, 3, Q("6.5 in")),
    Sketcher.Constraint("DistanceX", 5, 2, 5, 1, Q("3.875 in")),
    Sketcher.Constraint("DistanceX", 41, 2, 41, 1, Q("1.9375 in")),
    Sketcher.Constraint("DistanceY", 25, 2, 25, 1, Q("0.375 in")),
    Sketcher.Constraint("DistanceY", 57, 1, 57, 2, Q("2.125 in")),
    Sketcher.Constraint("DistanceX", -1, 1, 44, 3, Q("2.75 in")),
    Sketcher.Constraint("DistanceX", -1, 1, 2, 3, Q("5.71875 in")),
    Sketcher.Constraint("DistanceY", 2, 3, -1, 1, Q("2.09375 in")),
    Sketcher.Constraint("DistanceX", -1, 1, 3, 3, Q("4.28125 in")),
    Sketcher.Constraint("DistanceY", 6, 3, -1, 1, Q("4.875 in")),
    Sketcher.Constraint("DistanceY", 10, 3, -1, 1, Q("3.375 in")),
    Sketcher.Constraint("DistanceY", 14, 3, -1, 1, Q("4.125 in")),
    Sketcher.Constraint("DistanceY", 54, 3, -1, 1, Q("2.125 in")),
    Sketcher.Constraint("DistanceY", -1, 1, 58, 3, Q("1.0625 in")),
    Sketcher.Constraint("DistanceY", 0, 3, -1, 1, Q("3.7395 in")),
    Sketcher.Constraint("DistanceY", 18, 3, -1, 1, Q("4.2395 in")),
    Sketcher.Constraint("Radius", 18, 3.180476),
    Sketcher.Constraint("DistanceX", -1, 1, 54, 3, 185.732642),
    Sketcher.Constraint("DistanceX", -1, 1, 58, 3, 195.257642),
])
pocket4 = doc.addObject("PartDesign::Pocket", "Pocket003")
body.addObject(pocket4)
pocket4.Profile = sketch5
pocket4.Type = "ThroughAll"
pocket4.Reversed = True

# Sketch on XZ plane
sketch6 = doc.addObject("Sketcher::SketchObject", "Sketch005")
body.addObject(sketch6)
sketch6.AttachmentSupport = (doc.XZ_Plane, [""])
sketch6.MapMode = "FlatFace"
sketch6.AttachmentOffset = App.Placement(App.Vector(0, 0, -0.25 * 25.4), App.Rotation())
sketch6.addGeometry([
    Part.Circle(App.Vector(-79.4, -95, 0), App.Vector(0, 0, 1), 3.3),  # 0
    Part.Circle(App.Vector(-79.4, 95, 0), App.Vector(0, 0, 1), 3.3),  # 1
    Part.LineSegment(App.Vector(-95.2, -117.8, 0), App.Vector(-95.2, -136.5, 0)),  # 2
    Part.ArcOfCircle(Part.Circle(App.Vector(-111.1, -136.5, 0), App.Vector(0, 0, 1), 15.9), math.radians(-90), math.radians(0)),  # 3
    Part.LineSegment(App.Vector(-111.1, -152.4, 0), App.Vector(-168.3, -152.4, 0)),  # 4
    Part.ArcOfCircle(Part.Circle(App.Vector(-168.3, -117.5, 0), App.Vector(0, 0, 1), 34.9), math.radians(180), math.radians(270)),  # 5
    Part.LineSegment(App.Vector(-203.2, -117.5, 0), App.Vector(-203.2, 117.5, 0)),  # 6
    Part.ArcOfCircle(Part.Circle(App.Vector(-168.3, 117.5, 0), App.Vector(0, 0, 1), 34.9), math.radians(90), math.radians(180)),  # 7
    Part.LineSegment(App.Vector(-168.3, 152.4, 0), App.Vector(-111.1, 152.4, 0)),  # 8
    Part.ArcOfCircle(Part.Circle(App.Vector(-111.1, 136.5, 0), App.Vector(0, 0, 1), 15.9), math.radians(0), math.radians(90)),  # 9
    Part.LineSegment(App.Vector(-95.2, 136.5, 0), App.Vector(-95.2, 117.8, 0)),  # 10
    Part.ArcOfCircle(Part.Circle(App.Vector(-88.3, 117.8, 0), App.Vector(0, 0, 1), 7), math.radians(180), math.radians(270)),  # 11
    Part.ArcOfCircle(Part.Circle(App.Vector(-88.3, 88.8, 0), App.Vector(0, 0, 1), 22.1), math.radians(90), math.radians(270)),  # 12
    Part.LineSegment(App.Vector(-88.3, 66.7, 0), App.Vector(-73, 66.7, 0)),  # 13
    Part.ArcOfCircle(Part.Circle(App.Vector(-73, 0, 0), App.Vector(0, 0, 1), 66.7), math.radians(90), math.radians(270)),  # 14
    Part.LineSegment(App.Vector(-73, -66.7, 0), App.Vector(-88.3, -66.7, 0)),  # 15
    Part.ArcOfCircle(Part.Circle(App.Vector(-88.3, -88.8, 0), App.Vector(0, 0, 1), 22.1), math.radians(90), math.radians(270)),  # 16
    Part.ArcOfCircle(Part.Circle(App.Vector(-88.3, -117.8, 0), App.Vector(0, 0, 1), 7), math.radians(90), math.radians(180)),  # 17
], False)
sketch6.addConstraint([
    Sketcher.Constraint("Tangent", 2, 2, 3, 2),
    Sketcher.Constraint("Tangent", 3, 1, 4, 1),
    Sketcher.Constraint("Tangent", 4, 2, 5, 2),
    Sketcher.Constraint("Tangent", 5, 1, 6, 1),
    Sketcher.Constraint("Tangent", 6, 2, 7, 2),
    Sketcher.Constraint("Tangent", 7, 1, 8, 1),
    Sketcher.Constraint("Tangent", 8, 2, 9, 2),
    Sketcher.Constraint("Tangent", 9, 1, 10, 1),
    Sketcher.Constraint("Tangent", 10, 2, 11, 1),
    Sketcher.Constraint("Tangent", 11, 2, 12, 1),
    Sketcher.Constraint("Tangent", 12, 2, 13, 1),
    Sketcher.Constraint("Tangent", 13, 2, 14, 1),
    Sketcher.Constraint("Tangent", 14, 2, 15, 1),
    Sketcher.Constraint("Tangent", 15, 2, 16, 1),
    Sketcher.Constraint("Tangent", 16, 2, 17, 1),
    Sketcher.Constraint("Tangent", 17, 2, 2, 1),
    Sketcher.Constraint("Vertical", 2),
    Sketcher.Constraint("Horizontal", 4),
    Sketcher.Constraint("Vertical", 6),
    Sketcher.Constraint("Horizontal", 8),
    Sketcher.Constraint("Vertical", 10),
    Sketcher.Constraint("Horizontal", 13),
    Sketcher.Constraint("Horizontal", 15),
    Sketcher.Constraint("Equal", 0, 1),
    Sketcher.Constraint("Equal", 5, 7),
    Sketcher.Constraint("Equal", 3, 9),
    Sketcher.Constraint("Equal", 12, 16),
    Sketcher.Constraint("Equal", 11, 17),
    Sketcher.Constraint("Symmetric", 0, 3, 1, 3, -1),
    Sketcher.Constraint("Symmetric", 3, 3, 9, 3, -1),
    Sketcher.Constraint("Symmetric", 12, 3, 16, 3, -1),
    Sketcher.Constraint("Vertical", 11, 3, 12, 3),
    Sketcher.Constraint("Diameter", 0, Q("0.257 in")),
    Sketcher.Constraint("DistanceX", 13, 1, 13, 2, Q("0.6 in")),
    Sketcher.Constraint("DistanceY", 3, 1, -1, 1, Q("6 in")),
    Sketcher.Constraint("DistanceX", 5, 1, -1, 1, Q("8 in")),
    Sketcher.Constraint("Radius", 3, Q("0.625 in")),
    Sketcher.Constraint("Radius", 5, Q("1.375 in")),
    Sketcher.Constraint("Radius", 11, Q("0.275 in")),
    Sketcher.Constraint("Radius", 14, Q("2.625 in")),
    Sketcher.Constraint("DistanceX", 4, 2, 4, 1, Q("2.25 in")),
    Sketcher.Constraint("DistanceX", 5, 3, 0, 3, Q("3.5 in")),
    Sketcher.Constraint("DistanceY", 1, 3, 11, 3, Q("0.9 in")),
    Sketcher.Constraint("DistanceY", 2, 2, 2, 1, Q("0.7355 in")),
])
pocket5 = doc.addObject("PartDesign::Pocket", "Pocket004")
body.addObject(pocket5)
pocket5.Profile = sketch6
pocket5.Type = "ThroughAll"
pocket5.Reversed = True

# Sketch on XZ plane
sketch7 = doc.addObject("Sketcher::SketchObject", "Sketch006")
body.addObject(sketch7)
sketch7.AttachmentSupport = (doc.XZ_Plane, [""])
sketch7.MapMode = "FlatFace"
sketch7.AttachmentOffset = App.Placement(App.Vector(0, 0, -0.25 * 25.4), App.Rotation())
sketch7.addGeometry([
    Part.LineSegment(App.Vector(-88, -67, 0), App.Vector(-88, -111, 0)),
    Part.ArcOfCircle(Part.Circle(App.Vector(-88, -89, 0), App.Vector(0, 0, 1), 22), math.radians(90), math.radians(270)),
    Part.LineSegment(App.Vector(-88, 111, 0), App.Vector(-88, 67, 0)),
    Part.ArcOfCircle(Part.Circle(App.Vector(-88, 89, 0), App.Vector(0, 0, 1), 22), math.radians(90), math.radians(270)),
], False)
sketch7.addConstraint([
    Sketcher.Constraint("Coincident", 0, 1, 1, 1),
    Sketcher.Constraint("Coincident", 1, 2, 0, 2),
    Sketcher.Constraint("Coincident", 2, 1, 3, 1),
    Sketcher.Constraint("Coincident", 3, 2, 2, 2),
    Sketcher.Constraint("Vertical", 0),
    Sketcher.Constraint("Vertical", 2),
    Sketcher.Constraint("Equal", 1, 3),
    Sketcher.Constraint("Symmetric", 1, 3, 3, 3, -1),
    Sketcher.Constraint("Vertical", 3, 3, 0, 1),
    Sketcher.Constraint("Vertical", 1, 2, 2, 1),
    Sketcher.Constraint("DistanceY", 0, 1, 3, 2, Q("5.25 in")),
    Sketcher.Constraint("DistanceY", 0, 2, 0, 1, Q("1.7395 in")),
    Sketcher.Constraint("DistanceX", 1, 3, -1, 1, Q("3.475 in")),
])
pocket6 = doc.addObject("PartDesign::Pocket", "Pocket005")
body.addObject(pocket6)
pocket6.Profile = sketch7
pocket6.Type = "ThroughAll"
pocket6.Reversed = True

# Sketch on YZ plane
sketch8 = doc.addObject("Sketcher::SketchObject", "Sketch007")
body.addObject(sketch8)
sketch8.AttachmentSupport = (doc.YZ_Plane, [""])
sketch8.MapMode = "FlatFace"
sketch8.AttachmentOffset = App.Placement(App.Vector(0, 0, -3.475 * 25.4), App.Rotation())
sketch8.addGeometry([
    Part.LineSegment(App.Vector(6, -111, 0), App.Vector(0, -111, 0)),  # 0
    Part.LineSegment(App.Vector(0, -111, 0), App.Vector(0, -67, 0)),  # 1
    Part.LineSegment(App.Vector(0, -67, 0), App.Vector(6, -67, 0)),  # 2
    Part.LineSegment(App.Vector(6, -67, 0), App.Vector(6, -111, 0)),  # 3
    Part.LineSegment(App.Vector(6, 67, 0), App.Vector(0, 67, 0)),  # 4
    Part.LineSegment(App.Vector(0, 67, 0), App.Vector(0, 111, 0)),  # 5
    Part.LineSegment(App.Vector(0, 111, 0), App.Vector(6, 111, 0)),  # 6
    Part.LineSegment(App.Vector(6, 111, 0), App.Vector(6, 67, 0)),  # 7
], False)
sketch8.addConstraint([
    Sketcher.Constraint("Coincident", 0, 2, 1, 1),
    Sketcher.Constraint("Coincident", 1, 2, 2, 1),
    Sketcher.Constraint("Coincident", 2, 2, 3, 1),
    Sketcher.Constraint("Coincident", 3, 2, 0, 1),
    Sketcher.Constraint("Coincident", 4, 2, 5, 1),
    Sketcher.Constraint("Coincident", 5, 2, 6, 1),
    Sketcher.Constraint("Coincident", 6, 2, 7, 1),
    Sketcher.Constraint("Coincident", 7, 2, 4, 1),
    Sketcher.Constraint("Horizontal", 0),
    Sketcher.Constraint("Vertical", 1),
    Sketcher.Constraint("Horizontal", 2),
    Sketcher.Constraint("Vertical", 3),
    Sketcher.Constraint("Horizontal", 4),
    Sketcher.Constraint("Vertical", 5),
    Sketcher.Constraint("Horizontal", 6),
    Sketcher.Constraint("Vertical", 7),
    Sketcher.Constraint("Symmetric", 1, 2, 4, 2, -1, 1),
    Sketcher.Constraint("Symmetric", 0, 2, 5, 2, -1),
    Sketcher.Constraint("Vertical", 3, 2, 6, 2),
    Sketcher.Constraint("DistanceX", 0, 2, 0, 1, Q("0.25 in")),
    Sketcher.Constraint("DistanceY", 1, 2, 4, 2, Q("5.25 in")),
    Sketcher.Constraint("DistanceY", 1, 1, 1, 2, Q("1.7395 in")),
])
pad2 = doc.addObject("PartDesign::Pad", "Pad001")
body.addObject(pad2)
pad2.Profile = sketch8
pad2.Length = Q("0.275 in")
pad2.Reversed = True
doc.recompute()

fillet3 = doc.addObject("PartDesign::Fillet", "Fillet002")
body.addObject(fillet3)
fillet3.Base = (pad2, edges_at(pad2, [(-95.25, 3.175, -110.858), (-95.25, 3.175, 110.858)]))
fillet3.Radius = Q("0.275 in")
doc.recompute()

mirrored = doc.addObject("PartDesign::Mirrored", "Mirrored")
body.addObject(mirrored)
mirrored.Originals = [pocket1]
mirrored.MirrorPlane = (doc.XY_Plane, [""])
body.Tip = mirrored
doc.recompute()

fillet4 = doc.addObject("PartDesign::Fillet", "Fillet003")
body.addObject(fillet4)
fillet4.Base = (mirrored, edges_at(mirrored, [(-63.5, 3.175, -152.4), (-63.5, 3.175, 152.4)]))
fillet4.Radius = Q("0.75 in")
doc.recompute()

fillet5 = doc.addObject("PartDesign::Fillet", "Fillet004")
body.addObject(fillet5)
fillet5.Base = (fillet4, edges_at(fillet4, [(-95.25, 3.175, -66.675), (-95.25, 3.175, 66.675)]))
fillet5.Radius = Q("1 in")

# Sketch on XZ plane
sketch9 = doc.addObject("Sketcher::SketchObject", "Sketch008")
body.addObject(sketch9)
sketch9.AttachmentSupport = (doc.XZ_Plane, [""])
sketch9.MapMode = "FlatFace"
sketch9.AttachmentOffset = App.Placement(App.Vector(0, 0, -0.25 * 25.4), App.Rotation())
sketch9.addGeometry([
    Part.Circle(App.Vector(109.4, -23.1, 0), App.Vector(0, 0, 1), 2.2),
    Part.Circle(App.Vector(109.4, 23.1, 0), App.Vector(0, 0, 1), 2.2),
], False)
sketch9.addConstraint([
    Sketcher.Constraint("Equal", 0, 1),
    Sketcher.Constraint("Symmetric", 0, 3, 1, 3, -1),
    Sketcher.Constraint("Diameter", 0, Q("0.177 in")),
    Sketcher.Constraint("DistanceY", 0, 3, -1, 1, Q("0.908 in")),
    Sketcher.Constraint("DistanceX", -1, 1, 0, 3, 109.37875),
])
pocket7 = doc.addObject("PartDesign::Pocket", "Pocket006")
body.addObject(pocket7)
pocket7.Profile = sketch9
pocket7.Type = "ThroughAll"
pocket7.Reversed = True

doc.recompute()
